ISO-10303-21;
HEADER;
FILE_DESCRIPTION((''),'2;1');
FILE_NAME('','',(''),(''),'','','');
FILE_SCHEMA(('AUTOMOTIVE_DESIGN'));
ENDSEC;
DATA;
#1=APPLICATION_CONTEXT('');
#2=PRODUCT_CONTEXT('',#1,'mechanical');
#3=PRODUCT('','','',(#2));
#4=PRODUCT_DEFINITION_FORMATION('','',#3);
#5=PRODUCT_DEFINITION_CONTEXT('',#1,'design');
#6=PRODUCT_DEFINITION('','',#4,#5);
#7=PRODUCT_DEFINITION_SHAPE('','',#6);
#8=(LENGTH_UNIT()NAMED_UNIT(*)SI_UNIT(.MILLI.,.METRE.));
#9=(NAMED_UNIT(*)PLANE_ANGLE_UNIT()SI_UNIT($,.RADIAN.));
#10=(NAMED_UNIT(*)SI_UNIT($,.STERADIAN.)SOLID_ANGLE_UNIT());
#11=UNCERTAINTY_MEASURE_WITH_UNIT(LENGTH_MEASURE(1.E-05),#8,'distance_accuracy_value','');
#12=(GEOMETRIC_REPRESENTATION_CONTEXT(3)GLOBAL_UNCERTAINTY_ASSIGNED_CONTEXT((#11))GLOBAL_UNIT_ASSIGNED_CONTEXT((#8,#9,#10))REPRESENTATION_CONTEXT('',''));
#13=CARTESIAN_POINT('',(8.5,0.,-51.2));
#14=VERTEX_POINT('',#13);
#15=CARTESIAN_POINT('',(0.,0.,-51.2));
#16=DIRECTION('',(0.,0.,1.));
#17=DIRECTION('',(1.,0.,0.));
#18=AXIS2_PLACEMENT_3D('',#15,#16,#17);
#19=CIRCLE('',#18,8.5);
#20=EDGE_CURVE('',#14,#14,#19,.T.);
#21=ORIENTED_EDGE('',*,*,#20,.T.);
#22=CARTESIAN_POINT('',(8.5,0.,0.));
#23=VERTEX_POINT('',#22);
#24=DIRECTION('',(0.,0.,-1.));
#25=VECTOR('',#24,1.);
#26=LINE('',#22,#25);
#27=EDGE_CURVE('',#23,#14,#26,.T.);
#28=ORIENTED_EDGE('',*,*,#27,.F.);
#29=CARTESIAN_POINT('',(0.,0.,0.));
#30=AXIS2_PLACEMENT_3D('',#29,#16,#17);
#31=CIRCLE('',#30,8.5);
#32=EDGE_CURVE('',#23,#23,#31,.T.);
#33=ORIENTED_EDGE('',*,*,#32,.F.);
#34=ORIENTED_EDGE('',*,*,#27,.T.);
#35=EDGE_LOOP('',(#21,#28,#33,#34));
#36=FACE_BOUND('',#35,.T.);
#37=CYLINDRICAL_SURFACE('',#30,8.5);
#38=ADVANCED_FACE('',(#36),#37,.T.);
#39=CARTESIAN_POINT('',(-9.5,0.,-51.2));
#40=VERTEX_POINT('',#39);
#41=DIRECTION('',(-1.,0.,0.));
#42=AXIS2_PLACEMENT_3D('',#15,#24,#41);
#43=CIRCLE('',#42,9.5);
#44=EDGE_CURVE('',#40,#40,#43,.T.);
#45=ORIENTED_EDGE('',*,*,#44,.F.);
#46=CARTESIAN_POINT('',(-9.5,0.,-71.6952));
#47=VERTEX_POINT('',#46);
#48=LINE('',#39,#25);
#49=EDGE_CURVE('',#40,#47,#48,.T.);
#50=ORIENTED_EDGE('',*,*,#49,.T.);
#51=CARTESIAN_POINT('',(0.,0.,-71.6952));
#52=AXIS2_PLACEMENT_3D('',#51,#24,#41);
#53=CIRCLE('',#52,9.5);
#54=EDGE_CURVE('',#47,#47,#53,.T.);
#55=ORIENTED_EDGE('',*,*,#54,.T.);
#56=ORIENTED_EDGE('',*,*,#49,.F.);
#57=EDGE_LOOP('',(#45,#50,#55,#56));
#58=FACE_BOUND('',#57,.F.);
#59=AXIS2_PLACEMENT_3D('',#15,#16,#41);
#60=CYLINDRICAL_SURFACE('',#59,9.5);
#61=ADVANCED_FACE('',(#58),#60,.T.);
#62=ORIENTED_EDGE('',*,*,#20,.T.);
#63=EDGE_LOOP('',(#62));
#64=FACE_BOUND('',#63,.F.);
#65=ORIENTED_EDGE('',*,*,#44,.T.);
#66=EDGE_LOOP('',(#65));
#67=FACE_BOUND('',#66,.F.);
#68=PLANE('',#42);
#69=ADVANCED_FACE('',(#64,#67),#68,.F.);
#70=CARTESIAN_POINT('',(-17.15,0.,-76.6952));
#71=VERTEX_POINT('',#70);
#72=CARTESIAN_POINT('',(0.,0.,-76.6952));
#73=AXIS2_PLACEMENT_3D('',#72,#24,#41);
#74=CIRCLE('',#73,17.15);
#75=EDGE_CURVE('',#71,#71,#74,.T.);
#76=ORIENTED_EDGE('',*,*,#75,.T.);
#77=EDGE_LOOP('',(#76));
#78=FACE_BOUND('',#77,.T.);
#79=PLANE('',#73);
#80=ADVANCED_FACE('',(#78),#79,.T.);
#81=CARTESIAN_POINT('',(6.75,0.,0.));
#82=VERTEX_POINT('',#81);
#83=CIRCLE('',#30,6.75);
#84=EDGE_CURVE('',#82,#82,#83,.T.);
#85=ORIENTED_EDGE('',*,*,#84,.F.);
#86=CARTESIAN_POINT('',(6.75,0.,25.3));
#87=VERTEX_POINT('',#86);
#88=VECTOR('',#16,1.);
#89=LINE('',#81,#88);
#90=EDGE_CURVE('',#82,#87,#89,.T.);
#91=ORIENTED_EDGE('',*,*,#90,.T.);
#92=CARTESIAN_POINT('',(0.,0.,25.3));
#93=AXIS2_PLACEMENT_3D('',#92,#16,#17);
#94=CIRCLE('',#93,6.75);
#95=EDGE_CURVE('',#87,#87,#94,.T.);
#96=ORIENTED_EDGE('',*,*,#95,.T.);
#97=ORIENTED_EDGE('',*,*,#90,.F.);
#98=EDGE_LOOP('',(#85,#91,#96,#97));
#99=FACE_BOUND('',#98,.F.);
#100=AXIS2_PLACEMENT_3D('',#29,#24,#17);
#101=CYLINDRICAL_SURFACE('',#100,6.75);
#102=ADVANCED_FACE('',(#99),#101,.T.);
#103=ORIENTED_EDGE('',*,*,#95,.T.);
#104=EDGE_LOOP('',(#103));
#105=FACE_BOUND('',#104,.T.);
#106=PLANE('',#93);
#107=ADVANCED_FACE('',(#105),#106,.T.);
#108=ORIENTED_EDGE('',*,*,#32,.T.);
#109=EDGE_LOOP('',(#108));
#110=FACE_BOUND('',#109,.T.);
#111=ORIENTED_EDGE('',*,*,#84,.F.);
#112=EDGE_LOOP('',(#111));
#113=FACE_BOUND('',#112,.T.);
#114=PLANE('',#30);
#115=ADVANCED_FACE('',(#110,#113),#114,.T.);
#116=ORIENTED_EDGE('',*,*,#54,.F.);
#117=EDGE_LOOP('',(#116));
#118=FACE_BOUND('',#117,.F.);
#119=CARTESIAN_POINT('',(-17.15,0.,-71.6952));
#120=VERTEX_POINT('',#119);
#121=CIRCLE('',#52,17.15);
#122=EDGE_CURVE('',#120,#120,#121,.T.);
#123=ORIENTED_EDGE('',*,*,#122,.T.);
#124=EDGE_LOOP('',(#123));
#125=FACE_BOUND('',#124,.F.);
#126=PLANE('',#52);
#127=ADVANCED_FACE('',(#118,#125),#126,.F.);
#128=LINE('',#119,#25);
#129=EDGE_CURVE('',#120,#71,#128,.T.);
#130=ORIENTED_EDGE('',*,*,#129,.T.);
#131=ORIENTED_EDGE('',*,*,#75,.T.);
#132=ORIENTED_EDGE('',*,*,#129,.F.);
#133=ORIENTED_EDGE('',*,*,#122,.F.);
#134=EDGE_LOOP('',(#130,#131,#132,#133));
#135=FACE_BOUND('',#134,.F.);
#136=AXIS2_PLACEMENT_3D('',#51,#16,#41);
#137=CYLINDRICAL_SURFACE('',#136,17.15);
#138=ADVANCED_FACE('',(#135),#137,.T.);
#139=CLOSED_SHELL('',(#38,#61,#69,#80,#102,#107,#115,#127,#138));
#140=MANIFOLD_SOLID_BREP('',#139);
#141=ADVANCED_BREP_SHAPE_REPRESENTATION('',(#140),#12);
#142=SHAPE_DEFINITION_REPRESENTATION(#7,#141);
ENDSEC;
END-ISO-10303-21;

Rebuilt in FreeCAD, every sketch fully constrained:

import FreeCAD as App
import Part
import Sketcher

V = App.Vector
Q = App.Units.Quantity

doc = App.newDocument("Part")
params = doc.addObject("Spreadsheet::Sheet", "Params")
for row, (alias, value) in enumerate([
    ("sketch1_diameter", "17 mm"),
    ("pad1_length", "51.2 mm"),
    ("sketch2_diameter", "13.5 mm"),
    ("pad2_length", "25.3 mm"),
    ("sketch3_diameter", "19 mm"),
    ("pad3_length", "20.4952 mm"),
    ("sketch4_diameter", "34.3 mm"),
    ("pad4_length", "5 mm"),
], start=1):
    params.set(f"A{row}", alias)
    params.set(f"B{row}", "=" + value)
    params.setAlias(f"B{row}", alias)

body = doc.addObject("PartDesign::Body", "Body")

sketch1 = body.newObject("Sketcher::SketchObject", "Sketch")
sketch1.AttachmentSupport = (doc.getObject("XY_Plane"), [""])
sketch1.MapMode = "FlatFace"
sketch1.addGeometry(Part.Circle(V(0, 0, 0), V(0, 0, 1), 8), False)
sketch1.addConstraint([
    Sketcher.Constraint("Coincident", 0, 3, -1, 1),
    Sketcher.Constraint("Diameter", 0, Q("17 mm")),
])
sketch1.setExpression("Constraints[1]", "Params.sketch1_diameter")
pad1 = body.newObject("PartDesign::Pad", "Pad")
pad1.Profile = sketch1
pad1.setExpression("Length", "Params.pad1_length")
pad1.Reversed = True

sketch2 = body.newObject("Sketcher::SketchObject", "Sketch001")
sketch2.AttachmentSupport = (doc.getObject("XY_Plane"), [""])
sketch2.MapMode = "FlatFace"
sketch2.addGeometry(Part.Circle(V(0, 0, 0), V(0, 0, 1), 7), False)
sketch2.addConstraint([
    Sketcher.Constraint("Coincident", 0, 3, -1, 1),
    Sketcher.Constraint("Diameter", 0, Q("13.5 mm")),
])
sketch2.setExpression("Constraints[1]", "Params.sketch2_diameter")
pad2 = body.newObject("PartDesign::Pad", "Pad001")
pad2.Profile = sketch2
pad2.setExpression("Length", "Params.pad2_length")

sketch3 = body.newObject("Sketcher::SketchObject", "Sketch002")
sketch3.AttachmentSupport = (doc.getObject("XY_Plane"), [""])
sketch3.MapMode = "FlatFace"
sketch3.AttachmentOffset = App.Placement(V(0, 0, -51.2), App.Rotation())
sketch3.addGeometry(Part.Circle(V(0, 0, 0), V(0, 0, 1), 10), False)
sketch3.addConstraint([
    Sketcher.Constraint("Coincident", 0, 3, -1, 1),
    Sketcher.Constraint("Diameter", 0, Q("19 mm")),
])
sketch3.setExpression("Constraints[1]", "Params.sketch3_diameter")
pad3 = body.newObject("PartDesign::Pad", "Pad002")
pad3.Profile = sketch3
pad3.setExpression("Length", "Params.pad3_length")
pad3.Reversed = True

sketch4 = body.newObject("Sketcher::SketchObject", "Sketch003")
sketch4.AttachmentSupport = (doc.getObject("XY_Plane"), [""])
sketch4.MapMode = "FlatFace"
sketch4.AttachmentOffset = App.Placement(V(0, 0, -71.6952), App.Rotation())
sketch4.addGeometry(Part.Circle(V(0, 0, 0), V(0, 0, 1), 17), False)
sketch4.addConstraint([
    Sketcher.Constraint("Coincident", 0, 3, -1, 1),
    Sketcher.Constraint("Diameter", 0, Q("34.3 mm")),
])
sketch4.setExpression("Constraints[1]", "Params.sketch4_diameter")
pad4 = body.newObject("PartDesign::Pad", "Pad003")
pad4.Profile = sketch4
pad4.setExpression("Length", "Params.pad4_length")
pad4.Reversed = True

doc.recompute()
